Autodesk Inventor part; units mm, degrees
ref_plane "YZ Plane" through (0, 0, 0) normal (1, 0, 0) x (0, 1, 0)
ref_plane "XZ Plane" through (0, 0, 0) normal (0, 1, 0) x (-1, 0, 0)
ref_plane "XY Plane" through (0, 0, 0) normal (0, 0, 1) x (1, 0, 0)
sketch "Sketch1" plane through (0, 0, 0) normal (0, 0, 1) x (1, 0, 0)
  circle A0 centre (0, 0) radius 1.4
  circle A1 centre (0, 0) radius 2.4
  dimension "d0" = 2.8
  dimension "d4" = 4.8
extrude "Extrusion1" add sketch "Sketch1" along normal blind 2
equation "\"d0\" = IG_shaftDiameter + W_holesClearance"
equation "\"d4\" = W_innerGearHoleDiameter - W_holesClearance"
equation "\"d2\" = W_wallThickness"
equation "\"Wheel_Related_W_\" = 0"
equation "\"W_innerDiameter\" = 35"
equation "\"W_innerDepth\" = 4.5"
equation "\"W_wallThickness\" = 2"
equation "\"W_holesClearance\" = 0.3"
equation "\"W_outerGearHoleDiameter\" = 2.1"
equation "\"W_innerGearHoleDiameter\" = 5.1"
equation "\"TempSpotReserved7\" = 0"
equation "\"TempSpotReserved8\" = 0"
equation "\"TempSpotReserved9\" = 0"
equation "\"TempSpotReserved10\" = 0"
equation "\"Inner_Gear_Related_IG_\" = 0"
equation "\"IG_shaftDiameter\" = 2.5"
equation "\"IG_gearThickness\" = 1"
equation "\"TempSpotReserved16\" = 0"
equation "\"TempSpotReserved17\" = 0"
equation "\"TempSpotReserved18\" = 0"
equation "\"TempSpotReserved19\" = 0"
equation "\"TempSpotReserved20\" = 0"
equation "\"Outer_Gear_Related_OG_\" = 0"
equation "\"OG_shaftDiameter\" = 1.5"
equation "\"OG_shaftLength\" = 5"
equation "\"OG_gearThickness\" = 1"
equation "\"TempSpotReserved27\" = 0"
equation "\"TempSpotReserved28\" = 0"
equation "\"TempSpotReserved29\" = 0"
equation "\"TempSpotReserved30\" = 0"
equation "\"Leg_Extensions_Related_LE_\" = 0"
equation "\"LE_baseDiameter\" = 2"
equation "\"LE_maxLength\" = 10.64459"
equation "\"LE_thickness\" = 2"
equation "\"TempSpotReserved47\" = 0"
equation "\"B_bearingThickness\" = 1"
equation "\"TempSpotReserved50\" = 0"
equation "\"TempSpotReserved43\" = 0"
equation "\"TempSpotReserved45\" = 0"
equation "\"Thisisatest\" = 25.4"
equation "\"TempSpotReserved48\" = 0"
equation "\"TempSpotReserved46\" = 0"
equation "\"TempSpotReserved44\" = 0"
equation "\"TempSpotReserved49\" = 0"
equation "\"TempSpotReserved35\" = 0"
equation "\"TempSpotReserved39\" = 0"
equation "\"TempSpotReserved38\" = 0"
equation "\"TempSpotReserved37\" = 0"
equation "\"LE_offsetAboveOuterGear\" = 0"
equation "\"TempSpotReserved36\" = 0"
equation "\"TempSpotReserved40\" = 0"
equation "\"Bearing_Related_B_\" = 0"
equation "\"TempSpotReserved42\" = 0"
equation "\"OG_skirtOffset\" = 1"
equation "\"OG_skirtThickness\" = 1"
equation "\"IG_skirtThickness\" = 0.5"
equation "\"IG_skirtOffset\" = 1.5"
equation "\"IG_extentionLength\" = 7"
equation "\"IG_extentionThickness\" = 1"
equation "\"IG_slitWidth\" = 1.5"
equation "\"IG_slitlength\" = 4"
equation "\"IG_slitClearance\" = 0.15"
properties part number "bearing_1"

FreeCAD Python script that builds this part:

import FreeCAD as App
import Part
import Sketcher
from FreeCAD import Vector

doc = App.newDocument("Part")
params = doc.addObject("Spreadsheet::Sheet", "Params")
for row, (alias, value) in enumerate([
    ("sketch1_diameter", "4.8 mm"),
    ("sketch1_diameter2", "2.8 mm"),
    ("pad1_length", "2 mm"),
], start=1):
    params.set(f"A{row}", alias)
    params.set(f"B{row}", "=" + value)
    params.setAlias(f"B{row}", alias)

body = doc.addObject("PartDesign::Body", "Body")

sketch1 = body.newObject("Sketcher::SketchObject", "Sketch")
sketch1.AttachmentSupport = (doc.getObject("XY_Plane"), [""])
sketch1.MapMode = "FlatFace"
sketch1.addGeometry(Part.Circle(Vector(0, 0, 0), Vector(0, 0, 1), 2.4), False)
sketch1.addGeometry(Part.Circle(Vector(0, 0, 0), Vector(0, 0, 1), 1.4), False)
sketch1.addConstraint(Sketcher.Constraint("Coincident", 0, 3, -1, 1))
sketch1.addConstraint(Sketcher.Constraint("Coincident", 1, 3, -1, 1))
sketch1.addConstraint(Sketcher.Constraint("Diameter", 0, 4.8))
sketch1.addConstraint(Sketcher.Constraint("Diameter", 1, 2.8))
sketch1.setExpression("Constraints[2]", "Params.sketch1_diameter")
sketch1.setExpression("Constraints[3]", "Params.sketch1_diameter2")
pad1 = body.newObject("PartDesign::Pad", "Pad")
pad1.Profile = sketch1
pad1.setExpression("Length", "Params.pad1_length")

doc.recompute()
